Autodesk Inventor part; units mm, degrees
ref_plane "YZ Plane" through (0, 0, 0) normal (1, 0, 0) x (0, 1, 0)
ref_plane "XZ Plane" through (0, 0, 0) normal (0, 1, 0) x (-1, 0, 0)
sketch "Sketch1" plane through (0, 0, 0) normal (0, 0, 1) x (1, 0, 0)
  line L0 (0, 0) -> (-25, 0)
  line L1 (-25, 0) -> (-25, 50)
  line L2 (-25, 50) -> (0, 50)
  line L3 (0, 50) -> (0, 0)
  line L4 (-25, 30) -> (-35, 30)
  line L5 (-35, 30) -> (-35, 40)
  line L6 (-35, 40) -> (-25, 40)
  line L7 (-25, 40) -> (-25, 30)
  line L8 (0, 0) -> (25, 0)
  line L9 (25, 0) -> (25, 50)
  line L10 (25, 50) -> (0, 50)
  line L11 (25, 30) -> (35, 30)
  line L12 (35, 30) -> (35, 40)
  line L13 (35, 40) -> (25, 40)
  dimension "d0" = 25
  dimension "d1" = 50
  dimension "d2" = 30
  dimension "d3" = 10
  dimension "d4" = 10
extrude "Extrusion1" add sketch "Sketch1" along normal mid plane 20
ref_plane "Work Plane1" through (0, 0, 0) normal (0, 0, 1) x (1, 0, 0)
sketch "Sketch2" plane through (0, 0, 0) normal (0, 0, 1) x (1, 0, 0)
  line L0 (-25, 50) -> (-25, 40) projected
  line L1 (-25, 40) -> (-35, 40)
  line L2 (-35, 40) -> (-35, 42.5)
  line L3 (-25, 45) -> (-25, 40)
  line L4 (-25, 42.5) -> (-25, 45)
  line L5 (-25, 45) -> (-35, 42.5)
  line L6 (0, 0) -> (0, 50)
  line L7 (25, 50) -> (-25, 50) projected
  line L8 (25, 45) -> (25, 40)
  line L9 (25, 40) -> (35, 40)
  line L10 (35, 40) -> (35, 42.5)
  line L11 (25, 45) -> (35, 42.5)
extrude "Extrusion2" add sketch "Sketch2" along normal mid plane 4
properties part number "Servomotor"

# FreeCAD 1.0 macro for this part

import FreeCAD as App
import Part
import Sketcher

V = App.Vector

doc = App.newDocument("Part")
params = doc.addObject("Spreadsheet::Sheet", "Params")
for row, (alias, value) in enumerate([
    ("sketch1_width", "50 mm"),
    ("sketch1_width2", "10 mm"),
    ("sketch1_height", "30 mm"),
    ("pad1_length", "20 mm"),
    ("sketch2_width", "10 mm"),
    ("sketch2_height", "5 mm"),
    ("sketch2_height2", "2.5 mm"),
    ("pad2_length", "4 mm"),
], start=1):
    params.set(f"A{row}", alias)
    params.set(f"B{row}", "=" + value)
    params.setAlias(f"B{row}", alias)

body = doc.addObject("PartDesign::Body", "Body")

sketch1 = body.newObject("Sketcher::SketchObject", "Sketch")
sketch1.AttachmentSupport = (doc.getObject("XY_Plane"), [""])
sketch1.MapMode = "FlatFace"
sketch1.addGeometry([
    Part.LineSegment(V(-25, 0, 0), V(25, 0, 0)),
    Part.LineSegment(V(25, 0, 0), V(25, 30, 0)),
    Part.LineSegment(V(25, 30, 0), V(35, 30, 0)),
    Part.LineSegment(V(35, 30, 0), V(35, 40, 0)),
    Part.LineSegment(V(35, 40, 0), V(25, 40, 0)),
    Part.LineSegment(V(25, 40, 0), V(25, 50, 0)),
    Part.LineSegment(V(25, 50, 0), V(-25, 50, 0)),
    Part.LineSegment(V(-25, 50, 0), V(-25, 40, 0)),
    Part.LineSegment(V(-25, 40, 0), V(-35, 40, 0)),
    Part.LineSegment(V(-35, 40, 0), V(-35, 30, 0)),
    Part.LineSegment(V(-35, 30, 0), V(-25, 30, 0)),
    Part.LineSegment(V(-25, 30, 0), V(-25, 0, 0)),
], False)
sketch1.addConstraint([
    Sketcher.Constraint("Coincident", 0, 2, 1, 1),
    Sketcher.Constraint("Coincident", 1, 2, 2, 1),
    Sketcher.Constraint("Coincident", 2, 2, 3, 1),
    Sketcher.Constraint("Coincident", 3, 2, 4, 1),
    Sketcher.Constraint("Coincident", 4, 2, 5, 1),
    Sketcher.Constraint("Coincident", 5, 2, 6, 1),
    Sketcher.Constraint("Coincident", 6, 2, 7, 1),
    Sketcher.Constraint("Coincident", 7, 2, 8, 1),
    Sketcher.Constraint("Coincident", 8, 2, 9, 1),
    Sketcher.Constraint("Coincident", 9, 2, 10, 1),
    Sketcher.Constraint("Coincident", 10, 2, 11, 1),
    Sketcher.Constraint("Coincident", 11, 2, 0, 1),
    Sketcher.Constraint("Horizontal", 0),
    Sketcher.Constraint("Vertical", 1),
    Sketcher.Constraint("Horizontal", 2),
    Sketcher.Constraint("Vertical", 3),
    Sketcher.Constraint("Horizontal", 4),
    Sketcher.Constraint("Vertical", 5),
    Sketcher.Constraint("Horizontal", 6),
    Sketcher.Constraint("Vertical", 7),
    Sketcher.Constraint("Horizontal", 8),
    Sketcher.Constraint("Vertical", 9),
    Sketcher.Constraint("Horizontal", 10),
    Sketcher.Constraint("Vertical", 11),
    Sketcher.Constraint("Symmetric", 0, 2, 11, 2, -1, 1),
    Sketcher.Constraint("Symmetric", 4, 2, 7, 2, -2),
    Sketcher.Constraint("Symmetric", 2, 2, 9, 2, -2),
    Sketcher.Constraint("Vertical", 1, 2, 4, 2),
    Sketcher.Constraint("Equal", 10, 3),
    Sketcher.Constraint("Equal", 3, 5),
    Sketcher.Constraint("DistanceX", 0, 1, 0, 2, 50.0),
    Sketcher.Constraint("DistanceX", 2, 1, 2, 2, 10.0),
    Sketcher.Constraint("DistanceY", 1, 1, 1, 2, 30.0),
])
sketch1.setExpression("Constraints[30]", "Params.sketch1_width")
sketch1.setExpression("Constraints[31]", "Params.sketch1_width2")
sketch1.setExpression("Constraints[32]", "Params.sketch1_height")
pad1 = body.newObject("PartDesign::Pad", "Pad")
pad1.Profile = sketch1
pad1.setExpression("Length", "Params.pad1_length")
pad1.Midplane = True

sketch2 = body.newObject("Sketcher::SketchObject", "Sketch001")
sketch2.AttachmentSupport = (doc.getObject("XY_Plane"), [""])
sketch2.MapMode = "FlatFace"
sketch2.addGeometry([
    Part.LineSegment(V(-25, 40, 0), V(-25, 45, 0)),
    Part.LineSegment(V(-25, 45, 0), V(-35, 42.5, 0)),
    Part.LineSegment(V(-35, 42.5, 0), V(-35, 40, 0)),
    Part.LineSegment(V(-35, 40, 0), V(-25, 40, 0)),
    Part.LineSegment(V(35, 42.5, 0), V(25, 45, 0)),
    Part.LineSegment(V(25, 45, 0), V(25, 40, 0)),
    Part.LineSegment(V(25, 40, 0), V(35, 40, 0)),
    Part.LineSegment(V(35, 40, 0), V(35, 42.5, 0)),
], False)
sketch2.addConstraint([
    Sketcher.Constraint("Coincident", 0, 2, 1, 1),
    Sketcher.Constraint("Coincident", 1, 2, 2, 1),
    Sketcher.Constraint("Coincident", 2, 2, 3, 1),
    Sketcher.Constraint("Coincident", 3, 2, 0, 1),
    Sketcher.Constraint("Coincident", 4, 2, 5, 1),
    Sketcher.Constraint("Coincident", 5, 2, 6, 1),
    Sketcher.Constraint("Coincident", 6, 2, 7, 1),
    Sketcher.Constraint("Coincident", 7, 2, 4, 1),
    Sketcher.Constraint("Vertical", 0),
    Sketcher.Constraint("Vertical", 2),
    Sketcher.Constraint("Horizontal", 3),
    Sketcher.Constraint("Vertical", 5),
    Sketcher.Constraint("Horizontal", 6),
    Sketcher.Constraint("Vertical", 7),
    Sketcher.Constraint("Symmetric", 0, 2, 4, 2, -2),
    Sketcher.Constraint("Symmetric", 2, 2, 6, 2, -2),
    Sketcher.Constraint("Horizontal", 1, 2, 7, 2),
    Sketcher.Constraint("DistanceX", 3, 1, 3, 2, 10.0),
    Sketcher.Constraint("DistanceY", 0, 1, 0, 2, 5.0),
    Sketcher.Constraint("DistanceY", 2, 2, 2, 1, 2.5),
    Sketcher.Constraint("DistanceX", 0, 2, -1, 1, 25.0),
    Sketcher.Constraint("DistanceY", -1, 1, 0, 2, 45.0),
])
sketch2.setExpression("Constraints[17]", "Params.sketch2_width")
sketch2.setExpression("Constraints[18]", "Params.sketch2_height")
sketch2.setExpression("Constraints[19]", "Params.sketch2_height2")
pad2 = body.newObject("PartDesign::Pad", "Pad001")
pad2.Profile = sketch2
pad2.setExpression("Length", "Params.pad2_length")
pad2.Midplane = True

doc.recompute()
